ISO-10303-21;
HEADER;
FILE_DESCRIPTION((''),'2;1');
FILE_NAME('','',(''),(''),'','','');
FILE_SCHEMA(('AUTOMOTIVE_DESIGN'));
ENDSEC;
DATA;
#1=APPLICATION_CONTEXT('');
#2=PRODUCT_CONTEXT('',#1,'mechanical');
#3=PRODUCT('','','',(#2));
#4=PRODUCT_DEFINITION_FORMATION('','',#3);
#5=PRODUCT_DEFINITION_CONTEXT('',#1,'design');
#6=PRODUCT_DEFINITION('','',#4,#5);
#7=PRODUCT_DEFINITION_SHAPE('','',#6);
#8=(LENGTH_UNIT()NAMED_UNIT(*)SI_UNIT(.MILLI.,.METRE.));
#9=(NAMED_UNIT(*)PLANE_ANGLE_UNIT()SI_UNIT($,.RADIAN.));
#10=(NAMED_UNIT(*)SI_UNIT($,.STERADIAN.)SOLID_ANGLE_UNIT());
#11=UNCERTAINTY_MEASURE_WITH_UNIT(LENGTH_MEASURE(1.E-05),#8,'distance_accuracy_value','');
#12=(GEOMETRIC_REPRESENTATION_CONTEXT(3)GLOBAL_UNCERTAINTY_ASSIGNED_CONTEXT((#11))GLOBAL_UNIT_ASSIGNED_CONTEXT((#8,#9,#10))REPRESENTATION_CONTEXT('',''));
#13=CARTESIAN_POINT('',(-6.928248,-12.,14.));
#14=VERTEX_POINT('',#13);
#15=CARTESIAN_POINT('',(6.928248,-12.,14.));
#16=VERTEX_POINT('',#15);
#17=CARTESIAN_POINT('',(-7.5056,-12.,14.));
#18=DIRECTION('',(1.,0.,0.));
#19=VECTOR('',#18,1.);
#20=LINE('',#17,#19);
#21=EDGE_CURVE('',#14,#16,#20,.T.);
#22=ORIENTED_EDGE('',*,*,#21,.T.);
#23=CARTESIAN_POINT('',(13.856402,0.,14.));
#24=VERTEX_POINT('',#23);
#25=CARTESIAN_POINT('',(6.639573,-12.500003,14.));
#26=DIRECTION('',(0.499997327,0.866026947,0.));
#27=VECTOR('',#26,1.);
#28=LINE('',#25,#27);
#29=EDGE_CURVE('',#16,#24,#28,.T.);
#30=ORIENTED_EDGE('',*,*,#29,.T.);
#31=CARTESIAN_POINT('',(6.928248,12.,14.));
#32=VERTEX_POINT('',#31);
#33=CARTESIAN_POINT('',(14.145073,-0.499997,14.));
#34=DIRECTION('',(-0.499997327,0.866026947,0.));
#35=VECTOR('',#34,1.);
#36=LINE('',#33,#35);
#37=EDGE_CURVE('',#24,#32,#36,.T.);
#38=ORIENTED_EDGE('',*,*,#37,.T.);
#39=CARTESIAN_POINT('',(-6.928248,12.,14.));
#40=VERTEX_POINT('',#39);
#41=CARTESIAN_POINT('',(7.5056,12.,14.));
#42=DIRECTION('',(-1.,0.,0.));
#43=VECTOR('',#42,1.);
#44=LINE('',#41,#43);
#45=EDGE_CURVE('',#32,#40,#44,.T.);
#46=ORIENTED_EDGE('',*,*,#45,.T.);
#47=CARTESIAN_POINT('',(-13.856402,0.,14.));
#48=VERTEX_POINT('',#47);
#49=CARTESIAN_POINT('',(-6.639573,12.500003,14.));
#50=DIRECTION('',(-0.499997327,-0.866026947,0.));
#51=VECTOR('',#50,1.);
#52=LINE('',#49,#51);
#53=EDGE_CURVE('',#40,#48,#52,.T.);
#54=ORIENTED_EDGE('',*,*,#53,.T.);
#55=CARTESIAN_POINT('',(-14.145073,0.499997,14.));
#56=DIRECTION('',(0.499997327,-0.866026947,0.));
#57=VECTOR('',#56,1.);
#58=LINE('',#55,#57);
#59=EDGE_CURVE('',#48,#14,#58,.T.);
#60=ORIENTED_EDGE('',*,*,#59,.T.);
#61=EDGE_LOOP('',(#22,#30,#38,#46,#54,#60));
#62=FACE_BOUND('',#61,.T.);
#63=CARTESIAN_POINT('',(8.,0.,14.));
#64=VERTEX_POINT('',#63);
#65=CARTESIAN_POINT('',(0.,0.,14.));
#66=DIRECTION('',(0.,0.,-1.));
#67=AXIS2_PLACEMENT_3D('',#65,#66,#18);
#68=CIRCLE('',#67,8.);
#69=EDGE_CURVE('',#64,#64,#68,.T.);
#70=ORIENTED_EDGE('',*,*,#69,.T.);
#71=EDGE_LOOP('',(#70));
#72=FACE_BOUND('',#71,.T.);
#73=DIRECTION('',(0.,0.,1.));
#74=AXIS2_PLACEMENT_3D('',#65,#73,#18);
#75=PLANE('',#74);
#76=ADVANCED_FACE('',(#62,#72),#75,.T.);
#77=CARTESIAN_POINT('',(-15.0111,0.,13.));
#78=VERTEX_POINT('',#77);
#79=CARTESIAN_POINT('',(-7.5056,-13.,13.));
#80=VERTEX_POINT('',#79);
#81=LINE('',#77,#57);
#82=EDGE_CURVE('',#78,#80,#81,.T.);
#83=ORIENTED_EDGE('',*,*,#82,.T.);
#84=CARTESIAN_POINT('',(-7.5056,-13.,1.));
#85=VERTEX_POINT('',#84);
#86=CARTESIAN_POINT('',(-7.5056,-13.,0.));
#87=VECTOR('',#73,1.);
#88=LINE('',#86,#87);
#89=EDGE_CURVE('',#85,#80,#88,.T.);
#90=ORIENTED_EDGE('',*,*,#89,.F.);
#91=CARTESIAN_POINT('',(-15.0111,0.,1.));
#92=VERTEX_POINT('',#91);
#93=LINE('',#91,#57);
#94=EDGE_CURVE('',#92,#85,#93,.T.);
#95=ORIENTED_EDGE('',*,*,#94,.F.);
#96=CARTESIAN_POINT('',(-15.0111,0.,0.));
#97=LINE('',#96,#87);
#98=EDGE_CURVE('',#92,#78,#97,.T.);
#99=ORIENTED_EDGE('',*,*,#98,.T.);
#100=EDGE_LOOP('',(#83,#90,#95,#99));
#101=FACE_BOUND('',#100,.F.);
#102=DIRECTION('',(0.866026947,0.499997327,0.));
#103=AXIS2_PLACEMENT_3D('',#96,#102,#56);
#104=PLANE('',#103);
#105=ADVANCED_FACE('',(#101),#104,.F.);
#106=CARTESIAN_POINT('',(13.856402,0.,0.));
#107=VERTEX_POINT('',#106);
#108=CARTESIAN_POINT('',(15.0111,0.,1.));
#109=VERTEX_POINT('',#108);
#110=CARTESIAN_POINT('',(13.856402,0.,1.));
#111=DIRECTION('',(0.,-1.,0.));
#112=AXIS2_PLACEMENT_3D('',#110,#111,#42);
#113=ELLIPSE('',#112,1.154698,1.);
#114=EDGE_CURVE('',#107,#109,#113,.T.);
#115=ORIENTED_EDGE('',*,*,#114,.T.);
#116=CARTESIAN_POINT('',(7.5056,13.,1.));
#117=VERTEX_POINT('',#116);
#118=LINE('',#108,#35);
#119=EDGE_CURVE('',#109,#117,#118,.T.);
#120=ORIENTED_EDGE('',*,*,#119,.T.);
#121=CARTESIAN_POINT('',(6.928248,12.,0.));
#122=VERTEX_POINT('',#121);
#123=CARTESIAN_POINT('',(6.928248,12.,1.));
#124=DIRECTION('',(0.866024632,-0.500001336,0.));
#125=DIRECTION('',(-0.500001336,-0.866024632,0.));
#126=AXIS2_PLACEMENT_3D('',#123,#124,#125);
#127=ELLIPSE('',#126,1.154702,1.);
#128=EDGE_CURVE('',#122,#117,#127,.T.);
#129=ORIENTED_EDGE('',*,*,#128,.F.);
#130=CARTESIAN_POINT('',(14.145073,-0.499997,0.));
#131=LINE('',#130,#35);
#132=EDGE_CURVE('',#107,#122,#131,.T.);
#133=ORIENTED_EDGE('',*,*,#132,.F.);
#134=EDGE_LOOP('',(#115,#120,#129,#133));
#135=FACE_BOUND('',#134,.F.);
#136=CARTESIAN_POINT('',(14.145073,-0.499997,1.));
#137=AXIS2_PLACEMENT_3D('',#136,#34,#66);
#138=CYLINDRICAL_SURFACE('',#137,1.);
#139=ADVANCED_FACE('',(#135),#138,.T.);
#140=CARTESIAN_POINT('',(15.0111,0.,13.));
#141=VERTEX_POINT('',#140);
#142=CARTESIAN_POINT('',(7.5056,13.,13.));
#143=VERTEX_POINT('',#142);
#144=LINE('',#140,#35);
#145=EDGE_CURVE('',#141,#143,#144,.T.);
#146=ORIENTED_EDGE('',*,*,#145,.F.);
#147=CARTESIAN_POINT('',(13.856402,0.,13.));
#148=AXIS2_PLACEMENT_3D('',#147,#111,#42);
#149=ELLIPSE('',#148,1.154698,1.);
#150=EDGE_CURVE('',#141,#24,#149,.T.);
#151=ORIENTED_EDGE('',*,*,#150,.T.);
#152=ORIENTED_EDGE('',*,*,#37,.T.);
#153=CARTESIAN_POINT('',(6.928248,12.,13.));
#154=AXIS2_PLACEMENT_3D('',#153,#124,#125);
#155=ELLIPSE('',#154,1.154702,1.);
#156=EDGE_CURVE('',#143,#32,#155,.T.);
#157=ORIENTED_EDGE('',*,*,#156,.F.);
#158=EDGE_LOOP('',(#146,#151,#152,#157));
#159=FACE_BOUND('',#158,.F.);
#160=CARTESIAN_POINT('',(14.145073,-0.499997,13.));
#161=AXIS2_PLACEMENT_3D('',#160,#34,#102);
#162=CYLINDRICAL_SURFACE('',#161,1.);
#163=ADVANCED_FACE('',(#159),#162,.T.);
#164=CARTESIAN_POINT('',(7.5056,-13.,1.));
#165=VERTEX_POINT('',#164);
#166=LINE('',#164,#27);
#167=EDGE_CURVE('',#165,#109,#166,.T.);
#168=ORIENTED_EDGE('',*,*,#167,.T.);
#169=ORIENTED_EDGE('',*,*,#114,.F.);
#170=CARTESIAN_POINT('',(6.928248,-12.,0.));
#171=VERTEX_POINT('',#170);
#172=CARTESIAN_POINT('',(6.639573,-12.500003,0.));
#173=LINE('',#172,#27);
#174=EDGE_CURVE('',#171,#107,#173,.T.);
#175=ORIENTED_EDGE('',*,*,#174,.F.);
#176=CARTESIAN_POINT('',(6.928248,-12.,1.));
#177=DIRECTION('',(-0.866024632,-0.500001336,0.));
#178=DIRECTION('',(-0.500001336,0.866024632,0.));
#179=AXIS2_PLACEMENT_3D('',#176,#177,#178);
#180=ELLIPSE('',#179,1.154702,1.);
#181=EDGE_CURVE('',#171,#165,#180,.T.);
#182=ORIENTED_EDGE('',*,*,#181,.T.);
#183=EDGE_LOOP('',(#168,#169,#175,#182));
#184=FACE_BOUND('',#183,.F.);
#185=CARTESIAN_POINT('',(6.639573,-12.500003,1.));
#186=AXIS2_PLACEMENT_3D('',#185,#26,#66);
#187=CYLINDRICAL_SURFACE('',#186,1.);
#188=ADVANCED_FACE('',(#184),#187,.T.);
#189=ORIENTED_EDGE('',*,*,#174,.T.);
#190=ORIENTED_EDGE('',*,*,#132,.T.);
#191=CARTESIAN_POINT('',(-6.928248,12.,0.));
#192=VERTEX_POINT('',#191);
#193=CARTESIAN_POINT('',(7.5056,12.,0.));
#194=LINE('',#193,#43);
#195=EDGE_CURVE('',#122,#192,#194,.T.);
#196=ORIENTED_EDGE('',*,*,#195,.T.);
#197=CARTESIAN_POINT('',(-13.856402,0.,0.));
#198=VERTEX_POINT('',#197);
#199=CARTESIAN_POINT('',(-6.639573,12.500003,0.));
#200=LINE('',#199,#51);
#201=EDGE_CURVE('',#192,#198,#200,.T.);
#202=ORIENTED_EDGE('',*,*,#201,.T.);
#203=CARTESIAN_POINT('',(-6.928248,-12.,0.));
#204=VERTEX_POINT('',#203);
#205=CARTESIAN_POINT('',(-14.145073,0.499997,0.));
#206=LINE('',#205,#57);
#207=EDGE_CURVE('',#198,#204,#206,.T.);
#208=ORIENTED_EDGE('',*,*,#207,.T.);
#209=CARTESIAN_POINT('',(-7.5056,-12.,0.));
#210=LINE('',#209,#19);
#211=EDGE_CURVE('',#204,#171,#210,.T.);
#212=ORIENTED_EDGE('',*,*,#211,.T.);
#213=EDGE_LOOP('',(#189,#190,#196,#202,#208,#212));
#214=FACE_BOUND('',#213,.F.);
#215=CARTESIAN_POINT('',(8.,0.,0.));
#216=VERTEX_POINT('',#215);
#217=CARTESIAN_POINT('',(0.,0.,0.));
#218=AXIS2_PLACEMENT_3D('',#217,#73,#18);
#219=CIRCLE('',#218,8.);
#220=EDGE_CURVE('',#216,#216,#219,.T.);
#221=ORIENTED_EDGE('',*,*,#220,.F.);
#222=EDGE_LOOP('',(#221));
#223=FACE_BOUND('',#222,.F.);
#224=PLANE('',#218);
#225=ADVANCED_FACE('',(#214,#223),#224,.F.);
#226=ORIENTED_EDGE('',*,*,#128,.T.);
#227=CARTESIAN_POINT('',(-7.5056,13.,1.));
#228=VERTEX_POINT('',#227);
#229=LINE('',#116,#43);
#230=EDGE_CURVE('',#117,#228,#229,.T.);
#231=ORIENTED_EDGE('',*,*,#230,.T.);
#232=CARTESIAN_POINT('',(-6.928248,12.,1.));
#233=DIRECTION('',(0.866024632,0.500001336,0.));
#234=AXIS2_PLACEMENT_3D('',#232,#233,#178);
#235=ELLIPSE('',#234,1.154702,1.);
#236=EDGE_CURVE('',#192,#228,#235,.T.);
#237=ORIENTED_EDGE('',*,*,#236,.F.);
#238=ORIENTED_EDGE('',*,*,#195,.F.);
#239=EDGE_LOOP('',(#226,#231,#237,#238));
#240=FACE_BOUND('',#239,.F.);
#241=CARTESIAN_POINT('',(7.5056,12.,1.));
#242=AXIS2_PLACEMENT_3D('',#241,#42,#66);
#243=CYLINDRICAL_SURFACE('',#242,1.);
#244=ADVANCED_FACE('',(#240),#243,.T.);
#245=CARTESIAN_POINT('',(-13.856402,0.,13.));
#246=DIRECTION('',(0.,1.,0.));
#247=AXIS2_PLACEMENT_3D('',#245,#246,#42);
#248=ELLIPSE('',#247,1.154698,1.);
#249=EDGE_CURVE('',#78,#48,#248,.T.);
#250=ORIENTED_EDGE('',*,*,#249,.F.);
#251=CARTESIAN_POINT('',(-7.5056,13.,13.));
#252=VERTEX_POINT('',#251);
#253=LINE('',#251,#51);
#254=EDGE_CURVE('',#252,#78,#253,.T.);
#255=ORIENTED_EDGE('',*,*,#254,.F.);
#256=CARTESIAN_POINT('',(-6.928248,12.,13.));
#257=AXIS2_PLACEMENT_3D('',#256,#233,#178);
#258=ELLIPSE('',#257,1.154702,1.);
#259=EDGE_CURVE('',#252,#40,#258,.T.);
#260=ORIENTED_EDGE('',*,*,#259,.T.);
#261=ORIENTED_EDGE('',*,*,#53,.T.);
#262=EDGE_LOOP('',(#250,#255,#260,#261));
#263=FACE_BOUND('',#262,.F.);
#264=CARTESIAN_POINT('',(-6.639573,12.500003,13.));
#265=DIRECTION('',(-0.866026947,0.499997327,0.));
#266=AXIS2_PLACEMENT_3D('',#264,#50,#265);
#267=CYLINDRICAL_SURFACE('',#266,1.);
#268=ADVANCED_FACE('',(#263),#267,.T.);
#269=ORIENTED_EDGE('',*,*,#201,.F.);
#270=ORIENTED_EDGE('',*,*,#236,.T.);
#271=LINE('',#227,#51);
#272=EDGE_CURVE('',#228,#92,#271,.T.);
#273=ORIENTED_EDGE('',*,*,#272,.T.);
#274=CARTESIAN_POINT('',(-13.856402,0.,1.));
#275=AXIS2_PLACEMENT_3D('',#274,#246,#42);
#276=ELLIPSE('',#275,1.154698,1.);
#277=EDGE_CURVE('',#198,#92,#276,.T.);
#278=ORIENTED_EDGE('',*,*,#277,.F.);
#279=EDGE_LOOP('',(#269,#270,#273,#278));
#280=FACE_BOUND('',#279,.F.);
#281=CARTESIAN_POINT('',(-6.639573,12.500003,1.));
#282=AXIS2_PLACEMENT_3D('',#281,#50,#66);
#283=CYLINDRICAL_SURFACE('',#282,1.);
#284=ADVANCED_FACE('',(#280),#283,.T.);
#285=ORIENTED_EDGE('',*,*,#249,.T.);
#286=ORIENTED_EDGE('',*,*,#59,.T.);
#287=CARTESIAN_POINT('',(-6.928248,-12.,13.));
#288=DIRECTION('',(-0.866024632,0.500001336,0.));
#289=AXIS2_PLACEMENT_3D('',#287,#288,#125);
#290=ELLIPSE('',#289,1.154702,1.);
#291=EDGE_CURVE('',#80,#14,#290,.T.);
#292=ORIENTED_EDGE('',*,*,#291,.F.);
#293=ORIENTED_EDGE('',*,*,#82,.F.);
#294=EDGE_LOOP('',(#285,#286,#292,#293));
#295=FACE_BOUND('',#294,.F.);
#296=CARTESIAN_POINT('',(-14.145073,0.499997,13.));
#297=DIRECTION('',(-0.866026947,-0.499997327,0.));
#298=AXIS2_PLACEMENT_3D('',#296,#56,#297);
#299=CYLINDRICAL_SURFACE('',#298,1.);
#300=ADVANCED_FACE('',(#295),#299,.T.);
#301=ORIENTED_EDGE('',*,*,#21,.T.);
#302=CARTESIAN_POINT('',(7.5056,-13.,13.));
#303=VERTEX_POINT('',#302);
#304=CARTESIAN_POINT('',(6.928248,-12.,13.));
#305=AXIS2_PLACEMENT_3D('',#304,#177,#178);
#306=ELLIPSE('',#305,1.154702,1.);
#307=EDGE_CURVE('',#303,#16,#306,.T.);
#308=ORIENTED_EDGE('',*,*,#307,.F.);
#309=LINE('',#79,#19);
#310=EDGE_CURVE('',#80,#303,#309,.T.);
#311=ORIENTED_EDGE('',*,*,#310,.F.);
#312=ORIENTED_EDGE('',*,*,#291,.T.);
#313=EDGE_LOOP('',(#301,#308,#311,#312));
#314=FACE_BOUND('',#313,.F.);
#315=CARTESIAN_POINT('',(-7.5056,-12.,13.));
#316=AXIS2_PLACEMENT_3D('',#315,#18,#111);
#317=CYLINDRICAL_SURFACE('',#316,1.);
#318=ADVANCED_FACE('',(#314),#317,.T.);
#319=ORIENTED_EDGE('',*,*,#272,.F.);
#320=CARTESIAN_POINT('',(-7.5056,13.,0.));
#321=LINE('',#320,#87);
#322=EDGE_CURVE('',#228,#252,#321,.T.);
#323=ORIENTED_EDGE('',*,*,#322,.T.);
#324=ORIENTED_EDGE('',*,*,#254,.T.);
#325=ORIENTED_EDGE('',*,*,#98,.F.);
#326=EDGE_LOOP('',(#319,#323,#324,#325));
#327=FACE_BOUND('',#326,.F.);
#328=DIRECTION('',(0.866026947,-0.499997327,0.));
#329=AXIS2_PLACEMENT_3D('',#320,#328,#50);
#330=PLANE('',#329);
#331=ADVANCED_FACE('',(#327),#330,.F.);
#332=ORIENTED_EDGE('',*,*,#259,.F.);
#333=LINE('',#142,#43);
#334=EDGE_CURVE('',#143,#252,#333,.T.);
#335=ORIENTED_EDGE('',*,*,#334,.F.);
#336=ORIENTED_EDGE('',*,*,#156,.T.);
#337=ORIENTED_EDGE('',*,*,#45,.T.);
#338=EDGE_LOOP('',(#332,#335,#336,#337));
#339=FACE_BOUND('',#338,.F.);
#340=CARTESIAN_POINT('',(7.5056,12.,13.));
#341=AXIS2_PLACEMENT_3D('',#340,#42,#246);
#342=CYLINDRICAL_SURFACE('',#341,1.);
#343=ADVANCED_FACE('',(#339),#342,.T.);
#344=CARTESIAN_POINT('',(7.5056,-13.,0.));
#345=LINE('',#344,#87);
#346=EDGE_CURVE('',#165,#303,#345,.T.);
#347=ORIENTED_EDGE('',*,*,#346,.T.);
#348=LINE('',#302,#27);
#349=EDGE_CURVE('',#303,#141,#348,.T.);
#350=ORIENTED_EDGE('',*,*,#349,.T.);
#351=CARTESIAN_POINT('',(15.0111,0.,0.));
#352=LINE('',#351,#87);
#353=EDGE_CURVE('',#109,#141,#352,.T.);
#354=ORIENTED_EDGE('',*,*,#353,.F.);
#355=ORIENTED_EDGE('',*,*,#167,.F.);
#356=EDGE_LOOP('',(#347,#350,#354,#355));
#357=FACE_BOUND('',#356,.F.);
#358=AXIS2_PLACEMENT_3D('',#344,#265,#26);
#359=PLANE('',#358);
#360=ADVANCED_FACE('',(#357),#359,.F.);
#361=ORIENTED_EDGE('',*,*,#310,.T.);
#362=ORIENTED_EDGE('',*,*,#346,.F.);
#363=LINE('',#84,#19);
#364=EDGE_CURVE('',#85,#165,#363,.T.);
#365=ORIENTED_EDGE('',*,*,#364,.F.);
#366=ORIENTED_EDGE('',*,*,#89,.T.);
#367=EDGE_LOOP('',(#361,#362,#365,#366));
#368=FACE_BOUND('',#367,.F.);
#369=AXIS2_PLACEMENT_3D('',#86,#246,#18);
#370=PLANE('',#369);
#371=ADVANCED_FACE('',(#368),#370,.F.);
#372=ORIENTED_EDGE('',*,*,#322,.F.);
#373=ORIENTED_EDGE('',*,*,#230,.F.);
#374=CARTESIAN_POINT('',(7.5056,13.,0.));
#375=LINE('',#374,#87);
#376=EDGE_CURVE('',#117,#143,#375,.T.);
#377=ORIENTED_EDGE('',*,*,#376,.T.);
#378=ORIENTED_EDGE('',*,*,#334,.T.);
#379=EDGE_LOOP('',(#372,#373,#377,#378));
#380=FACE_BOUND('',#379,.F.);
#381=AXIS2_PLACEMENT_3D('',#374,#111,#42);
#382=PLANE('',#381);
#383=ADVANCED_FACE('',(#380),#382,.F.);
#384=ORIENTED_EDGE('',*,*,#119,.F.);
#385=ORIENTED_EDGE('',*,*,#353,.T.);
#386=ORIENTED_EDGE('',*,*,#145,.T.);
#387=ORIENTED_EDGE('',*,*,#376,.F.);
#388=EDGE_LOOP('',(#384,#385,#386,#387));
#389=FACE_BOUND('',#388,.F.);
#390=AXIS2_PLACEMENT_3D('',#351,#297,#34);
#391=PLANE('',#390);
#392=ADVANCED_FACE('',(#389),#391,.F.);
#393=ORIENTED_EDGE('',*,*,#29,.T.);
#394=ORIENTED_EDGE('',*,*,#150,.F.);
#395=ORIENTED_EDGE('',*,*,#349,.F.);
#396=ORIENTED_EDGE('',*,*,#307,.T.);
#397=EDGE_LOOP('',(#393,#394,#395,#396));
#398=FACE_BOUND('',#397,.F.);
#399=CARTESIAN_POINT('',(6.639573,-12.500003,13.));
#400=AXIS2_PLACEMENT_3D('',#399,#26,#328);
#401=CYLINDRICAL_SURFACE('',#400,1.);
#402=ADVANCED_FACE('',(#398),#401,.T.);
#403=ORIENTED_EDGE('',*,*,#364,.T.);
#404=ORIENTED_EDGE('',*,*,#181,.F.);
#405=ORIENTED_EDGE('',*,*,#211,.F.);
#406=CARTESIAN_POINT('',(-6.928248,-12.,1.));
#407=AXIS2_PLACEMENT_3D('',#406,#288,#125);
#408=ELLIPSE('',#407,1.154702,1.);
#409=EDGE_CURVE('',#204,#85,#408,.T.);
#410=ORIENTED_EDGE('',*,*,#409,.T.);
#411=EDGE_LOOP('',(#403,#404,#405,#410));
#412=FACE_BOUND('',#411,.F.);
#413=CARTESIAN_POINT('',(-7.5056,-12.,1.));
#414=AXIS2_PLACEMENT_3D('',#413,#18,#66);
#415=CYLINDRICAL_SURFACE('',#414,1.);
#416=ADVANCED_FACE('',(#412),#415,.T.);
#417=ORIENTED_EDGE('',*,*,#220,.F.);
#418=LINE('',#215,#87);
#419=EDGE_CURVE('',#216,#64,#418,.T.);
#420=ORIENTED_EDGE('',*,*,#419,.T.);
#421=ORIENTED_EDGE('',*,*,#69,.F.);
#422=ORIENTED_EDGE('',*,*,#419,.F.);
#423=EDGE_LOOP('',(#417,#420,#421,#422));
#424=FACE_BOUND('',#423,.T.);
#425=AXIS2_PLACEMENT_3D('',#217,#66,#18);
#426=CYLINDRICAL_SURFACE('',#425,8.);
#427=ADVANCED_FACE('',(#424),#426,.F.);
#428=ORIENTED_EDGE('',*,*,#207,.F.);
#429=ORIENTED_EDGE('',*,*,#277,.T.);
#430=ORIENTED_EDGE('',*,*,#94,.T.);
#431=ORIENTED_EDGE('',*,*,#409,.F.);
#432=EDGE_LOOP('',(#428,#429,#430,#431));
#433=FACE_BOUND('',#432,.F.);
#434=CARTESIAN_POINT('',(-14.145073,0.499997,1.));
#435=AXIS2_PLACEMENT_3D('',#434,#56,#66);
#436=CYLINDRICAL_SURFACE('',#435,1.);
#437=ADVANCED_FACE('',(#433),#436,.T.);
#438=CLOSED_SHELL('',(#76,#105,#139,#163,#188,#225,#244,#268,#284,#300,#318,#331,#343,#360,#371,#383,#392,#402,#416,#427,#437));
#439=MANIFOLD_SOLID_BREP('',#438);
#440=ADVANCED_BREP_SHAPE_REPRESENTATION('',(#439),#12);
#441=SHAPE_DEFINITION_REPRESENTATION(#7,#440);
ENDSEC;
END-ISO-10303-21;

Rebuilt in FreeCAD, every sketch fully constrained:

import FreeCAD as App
import Part
import Sketcher
Q = App.Units.Quantity


def edges_at(feature, points):
    """Names of the edges that pass closest to the given points."""
    edges = feature.Shape.Edges
    near = lambda p: min(range(len(edges)), key=lambda i: edges[i].distToShape(Part.Vertex(*p))[0])
    return sorted({f"Edge{near(p) + 1}" for p in points})


def add_polygon(sketch, points):
    """Adds a closed chain of lines whose ends are joined by coincident constraints."""
    first, n = sketch.GeometryCount, len(points)
    for a, b in zip(points, points[1:] + points[:1]):
        sketch.addGeometry(Part.LineSegment(App.Vector(*a, 0), App.Vector(*b, 0)), False)
    for i in range(n):
        sketch.addConstraint(Sketcher.Constraint("Coincident", first + i, 2, first + (i + 1) % n, 1))

doc = App.newDocument("Part")
body = doc.addObject("PartDesign::Body", "Body")

sketch1 = doc.addObject("Sketcher::SketchObject", "Sketch")
body.addObject(sketch1)
sketch1.AttachmentSupport = (doc.XY_Plane, [""])
sketch1.MapMode = "FlatFace"
add_polygon(sketch1, [(-15, 0), (-8, -13), (8, -13), (15, 0), (8, 13), (-8, 13)])
sketch1.addConstraint([
    Sketcher.Constraint("Horizontal", 1),
    Sketcher.Constraint("Horizontal", 4),
    Sketcher.Constraint("Symmetric", 0, 2, 3, 2, -1, 1),
    Sketcher.Constraint("Symmetric", 2, 2, 5, 2, -1, 1),
    Sketcher.Constraint("PointOnObject", 2, 2, -1),
    Sketcher.Constraint("Parallel", 2, 5),
    Sketcher.Constraint("Vertical", 1, 2, 3, 2),
    Sketcher.Constraint("Angle", 0, Q("-60.0002 deg")),
    Sketcher.Constraint("DistanceY", 0, 2, -1, 1, 13.0),
    Sketcher.Constraint("DistanceX", 1, 1, 1, 2, 15.0112),
])
pad1 = doc.addObject("PartDesign::Pad", "Pad")
body.addObject(pad1)
pad1.Profile = sketch1
pad1.Length = 14

sketch2 = doc.addObject("Sketcher::SketchObject", "Sketch001")
body.addObject(sketch2)
sketch2.AttachmentSupport = (doc.XY_Plane, [""])
sketch2.MapMode = "FlatFace"
sketch2.addGeometry(Part.Circle(App.Vector(0, 0, 0), App.Vector(0, 0, 1), 8), False)
sketch2.addConstraint([
    Sketcher.Constraint("Coincident", 0, 3, -1, 1),
    Sketcher.Constraint("Diameter", 0, 16.0),
])
pocket1 = doc.addObject("PartDesign::Pocket", "Pocket")
body.addObject(pocket1)
pocket1.Profile = sketch2
pocket1.Type = "ThroughAll"
pocket1.Reversed = True
doc.recompute()

fillet = doc.addObject("PartDesign::Fillet", "Fillet")
body.addObject(fillet)
fillet.Base = (pocket1, edges_at(pocket1, [
    (0, 13, 14),
    (0, 13, 0),
    (11.258, 6.5, 14),
    (11.258, 6.5, 0),
    (11.258, -6.5, 14),
    (11.258, -6.5, 0),
    (-11.258, 6.5, 14),
    (-11.258, 6.5, 0),
    (-11.258, -6.5, 0),
    (-11.258, -6.5, 14),
    (0, -13, 0),
    (0, -13, 14),
]))
fillet.Radius = 1

doc.recompute()
